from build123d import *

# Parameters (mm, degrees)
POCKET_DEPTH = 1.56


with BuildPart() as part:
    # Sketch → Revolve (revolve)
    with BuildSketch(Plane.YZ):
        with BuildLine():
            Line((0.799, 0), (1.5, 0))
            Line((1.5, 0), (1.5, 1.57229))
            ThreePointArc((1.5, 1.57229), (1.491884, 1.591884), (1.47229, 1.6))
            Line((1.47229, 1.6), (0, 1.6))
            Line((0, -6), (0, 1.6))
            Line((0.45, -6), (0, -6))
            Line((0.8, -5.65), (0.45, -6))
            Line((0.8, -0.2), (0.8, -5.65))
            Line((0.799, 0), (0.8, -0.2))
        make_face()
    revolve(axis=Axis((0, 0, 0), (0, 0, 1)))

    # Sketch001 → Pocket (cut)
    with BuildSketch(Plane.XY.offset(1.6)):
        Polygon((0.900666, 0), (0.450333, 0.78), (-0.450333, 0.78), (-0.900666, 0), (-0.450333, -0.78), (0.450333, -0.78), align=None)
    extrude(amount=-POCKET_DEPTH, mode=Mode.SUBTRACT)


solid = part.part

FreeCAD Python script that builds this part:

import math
import FreeCAD as App
import Part
import Sketcher
from FreeCAD import Vector
Q = App.Units.Quantity


def add_polygon(sketch, points):
    """Adds a closed chain of lines whose ends are joined by coincident constraints."""
    first, n = sketch.GeometryCount, len(points)
    for a, b in zip(points, points[1:] + points[:1]):
        sketch.addGeometry(Part.LineSegment(App.Vector(*a, 0), App.Vector(*b, 0)), False)
    for i in range(n):
        sketch.addConstraint(Sketcher.Constraint("Coincident", first + i, 2, first + (i + 1) % n, 1))

doc = App.newDocument("Part")
params = doc.addObject("Spreadsheet::Sheet", "Params")
for row, (alias, value) in enumerate([
    ("sketch1_height", "7.6 mm"),
    ("sketch1_width", "0.45 mm"),
    ("sketch1_height2", "5.45 mm"),
    ("revolution_angle", "360 deg"),
    ("pocket1_length", "1.56 mm"),
], start=1):
    params.set(f"A{row}", alias)
    params.set(f"B{row}", "=" + value)
    params.setAlias(f"B{row}", alias)

body = doc.addObject("PartDesign::Body", "Body")

# Sketch on YZ plane
sketch1 = body.newObject("Sketcher::SketchObject", "Sketch")
sketch1.AttachmentSupport = (doc.getObject("YZ_Plane"), [""])
sketch1.MapMode = "FlatFace"
sketch1.addGeometry([
    Part.LineSegment(Vector(0.799, 0, 0), Vector(1.5, 0, 0)),  # 0
    Part.LineSegment(Vector(1.5, 0, 0), Vector(1.5, 1.572, 0)),  # 1
    Part.ArcOfCircle(Part.Circle(Vector(1.472, 1.572, 0), Vector(0, 0, 1), 0.028), math.radians(0), math.radians(90)),  # 2
    Part.LineSegment(Vector(1.472, 1.6, 0), Vector(0, 1.6, 0)),  # 3
    Part.LineSegment(Vector(0, 1.6, 0), Vector(0, -6, 0)),  # 4
    Part.LineSegment(Vector(0, -6, 0), Vector(0.45, -6, 0)),  # 5
    Part.LineSegment(Vector(0.45, -6, 0), Vector(0.8, -5.65, 0)),  # 6
    Part.LineSegment(Vector(0.8, -5.65, 0), Vector(0.8, -0.2, 0)),  # 7
    Part.LineSegment(Vector(0.8, -0.2, 0), Vector(0.799, 0, 0)),  # 8
], False)
sketch1.addConstraint([
    Sketcher.Constraint("Coincident", 0, 2, 1, 1),
    Sketcher.Constraint("Coincident", 1, 2, 2, 1),
    Sketcher.Constraint("Coincident", 2, 2, 3, 1),
    Sketcher.Constraint("Coincident", 3, 2, 4, 1),
    Sketcher.Constraint("Coincident", 4, 2, 5, 1),
    Sketcher.Constraint("Coincident", 5, 2, 6, 1),
    Sketcher.Constraint("Coincident", 6, 2, 7, 1),
    Sketcher.Constraint("Coincident", 7, 2, 8, 1),
    Sketcher.Constraint("Coincident", 8, 2, 0, 1),
    Sketcher.Constraint("Horizontal", 0),
    Sketcher.Constraint("Vertical", 1),
    Sketcher.Constraint("Horizontal", 3),
    Sketcher.Constraint("Vertical", 4),
    Sketcher.Constraint("Horizontal", 5),
    Sketcher.Constraint("Vertical", 7),
    Sketcher.Constraint("PointOnObject", 0, 2, -1),
    Sketcher.Constraint("PointOnObject", 3, 2, -2),
    Sketcher.Constraint("Horizontal", 2, 3, 1, 2),
    Sketcher.Constraint("Angle", 6, Q("45 deg")),
    Sketcher.Constraint("DistanceY", 4, 2, 4, 1, Q("7.6 mm")),
    Sketcher.Constraint("DistanceY", 4, 2, -1, 1, Q("6 mm")),
    Sketcher.Constraint("DistanceX", 5, 1, 5, 2, Q("0.45 mm")),
    Sketcher.Constraint("DistanceY", 7, 1, 7, 2, Q("5.45 mm")),
    Sketcher.Constraint("DistanceX", -1, 1, 0, 2, Q("1.5 mm")),
    Sketcher.Constraint("DistanceX", -1, 1, 6, 2, Q("0.8 mm")),
    Sketcher.Constraint("DistanceX", 0, 1, 0, 2, Q("0.701 mm")),
    Sketcher.Constraint("Radius", 2, Q("0.02771 mm")),
    Sketcher.Constraint("DistanceX", 3, 2, 3, 1, Q("1.47229 mm")),
])
sketch1.setExpression("Constraints[19]", "Params.sketch1_height")
sketch1.setExpression("Constraints[21]", "Params.sketch1_width")
sketch1.setExpression("Constraints[22]", "Params.sketch1_height2")
revolution = body.newObject("PartDesign::Revolution", "Revolution")
revolution.Profile = sketch1
revolution.ReferenceAxis = (sketch1, ["V_Axis"])
revolution.setExpression("Angle", "Params.revolution_angle")

# Sketch on XY plane
sketch2 = body.newObject("Sketcher::SketchObject", "Sketch001")
sketch2.AttachmentSupport = (doc.getObject("XY_Plane"), [""])
sketch2.MapMode = "FlatFace"
sketch2.AttachmentOffset = App.Placement(Vector(0, 0, 1.6), App.Rotation())
add_polygon(sketch2, [(0.9, 0), (0.5, 0.8), (-0.5, 0.8), (-0.9, 0), (-0.5, -0.8), (0.5, -0.8)])  # lines 0-5
sketch2.addConstraint([
    Sketcher.Constraint("Horizontal", 1),
    Sketcher.Constraint("Horizontal", 4),
    Sketcher.Constraint("Symmetric", 0, 2, 3, 2, -1, 1),
    Sketcher.Constraint("Symmetric", 2, 2, 5, 2, -1, 1),
    Sketcher.Constraint("PointOnObject", 2, 2, -1),
    Sketcher.Constraint("Parallel", 2, 5),
    Sketcher.Constraint("Vertical", 1, 2, 3, 2),
    Sketcher.Constraint("Angle", 0, Q("119.999988 deg")),
    Sketcher.Constraint("DistanceY", -1, 1, 0, 2, Q("0.78 mm")),
    Sketcher.Constraint("DistanceX", 2, 2, 0, 2, Q("1.350999 mm")),
])
pocket1 = body.newObject("PartDesign::Pocket", "Pocket")
pocket1.Profile = sketch2
pocket1.setExpression("Length", "Params.pocket1_length")

doc.recompute()
